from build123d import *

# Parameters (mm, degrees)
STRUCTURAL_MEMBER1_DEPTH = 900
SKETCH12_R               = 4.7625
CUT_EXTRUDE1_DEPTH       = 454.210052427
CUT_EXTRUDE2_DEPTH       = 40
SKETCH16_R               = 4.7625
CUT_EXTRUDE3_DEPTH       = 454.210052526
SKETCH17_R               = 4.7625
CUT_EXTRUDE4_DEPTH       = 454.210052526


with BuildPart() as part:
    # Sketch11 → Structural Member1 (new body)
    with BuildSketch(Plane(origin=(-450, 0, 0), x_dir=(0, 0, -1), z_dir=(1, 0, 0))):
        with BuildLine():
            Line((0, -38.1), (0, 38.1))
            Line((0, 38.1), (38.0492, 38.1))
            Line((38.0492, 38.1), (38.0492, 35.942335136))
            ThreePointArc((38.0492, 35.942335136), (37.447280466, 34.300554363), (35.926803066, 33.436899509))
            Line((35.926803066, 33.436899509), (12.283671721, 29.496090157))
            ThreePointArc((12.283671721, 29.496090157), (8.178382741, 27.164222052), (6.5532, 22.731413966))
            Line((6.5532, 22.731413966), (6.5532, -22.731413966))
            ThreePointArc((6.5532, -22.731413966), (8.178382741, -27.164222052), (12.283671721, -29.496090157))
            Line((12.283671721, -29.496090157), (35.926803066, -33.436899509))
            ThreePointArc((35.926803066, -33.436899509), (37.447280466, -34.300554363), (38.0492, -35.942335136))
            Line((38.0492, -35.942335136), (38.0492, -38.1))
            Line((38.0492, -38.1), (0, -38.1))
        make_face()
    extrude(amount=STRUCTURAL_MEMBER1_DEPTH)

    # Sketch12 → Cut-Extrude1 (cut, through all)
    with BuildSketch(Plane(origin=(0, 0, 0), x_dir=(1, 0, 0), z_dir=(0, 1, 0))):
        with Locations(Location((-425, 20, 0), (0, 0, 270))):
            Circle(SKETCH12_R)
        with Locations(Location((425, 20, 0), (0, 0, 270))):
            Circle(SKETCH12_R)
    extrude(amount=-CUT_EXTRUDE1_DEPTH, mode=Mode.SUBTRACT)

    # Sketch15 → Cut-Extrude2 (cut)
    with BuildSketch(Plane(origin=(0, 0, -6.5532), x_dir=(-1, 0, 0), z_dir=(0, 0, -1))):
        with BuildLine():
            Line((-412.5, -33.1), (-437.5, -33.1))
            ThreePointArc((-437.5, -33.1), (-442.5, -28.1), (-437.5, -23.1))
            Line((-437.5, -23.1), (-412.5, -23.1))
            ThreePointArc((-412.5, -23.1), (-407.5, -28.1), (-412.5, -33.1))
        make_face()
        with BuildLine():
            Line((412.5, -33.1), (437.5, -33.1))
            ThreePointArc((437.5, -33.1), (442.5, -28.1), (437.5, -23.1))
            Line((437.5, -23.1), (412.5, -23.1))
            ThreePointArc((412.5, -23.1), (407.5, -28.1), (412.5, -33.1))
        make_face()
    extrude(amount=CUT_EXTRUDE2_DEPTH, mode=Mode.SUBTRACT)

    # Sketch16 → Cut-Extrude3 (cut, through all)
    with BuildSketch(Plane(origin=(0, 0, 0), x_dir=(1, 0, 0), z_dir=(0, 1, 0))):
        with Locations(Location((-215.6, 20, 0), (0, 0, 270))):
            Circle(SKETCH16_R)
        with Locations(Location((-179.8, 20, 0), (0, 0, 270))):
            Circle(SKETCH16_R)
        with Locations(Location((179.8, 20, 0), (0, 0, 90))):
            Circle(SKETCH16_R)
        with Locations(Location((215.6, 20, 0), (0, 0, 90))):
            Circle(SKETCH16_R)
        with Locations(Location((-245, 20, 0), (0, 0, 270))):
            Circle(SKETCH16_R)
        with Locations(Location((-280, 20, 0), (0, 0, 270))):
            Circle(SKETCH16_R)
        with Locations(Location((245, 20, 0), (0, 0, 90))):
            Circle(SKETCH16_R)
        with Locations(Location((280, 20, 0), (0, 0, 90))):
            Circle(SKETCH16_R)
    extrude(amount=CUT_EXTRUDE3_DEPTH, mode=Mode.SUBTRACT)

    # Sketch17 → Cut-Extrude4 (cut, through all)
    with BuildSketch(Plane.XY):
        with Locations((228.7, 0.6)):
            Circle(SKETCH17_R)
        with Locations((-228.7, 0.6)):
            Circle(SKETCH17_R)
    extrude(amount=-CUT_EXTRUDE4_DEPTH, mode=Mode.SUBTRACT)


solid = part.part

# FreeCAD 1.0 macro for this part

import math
import FreeCAD as App
import Part
import Sketcher

V = App.Vector
Q = App.Units.Quantity

doc = App.newDocument("Part")
body = doc.addObject("PartDesign::Body", "Body")

# Sketch on YZ plane
sketch1 = body.newObject("Sketcher::SketchObject", "Sketch")
sketch1.AttachmentSupport = (doc.getObject("YZ_Plane"), [""])
sketch1.MapMode = "FlatFace"
sketch1.AttachmentOffset = App.Placement(V(0, 0, -450), App.Rotation())
sketch1.addGeometry(Part.LineSegment(V(38.1, 0, 0), V(-38.1, 0, 0)), False)
sketch1.addGeometry(Part.LineSegment(V(-38.1, 0, 0), V(-38.1, -38.0492, 0)), False)
sketch1.addGeometry(Part.LineSegment(V(-38.1, -38.0492, 0), V(-35.942335, -38.0492, 0)), False)
sketch1.addGeometry(Part.ArcOfCircle(Part.Circle(V(-35.942335, -35.5092, 0), V(0, 0, 1), 2.54), math.radians(-90), math.radians(-9.463)), False)
sketch1.addGeometry(Part.LineSegment(V(-33.4369, -35.926803, 0), V(-29.49609, -12.283672, 0)), False)
sketch1.addGeometry(Part.ArcOfCircle(Part.Circle(V(-22.731414, -13.4112, 0), V(0, 0, 1), 6.858), math.radians(90), math.radians(170.537)), False)
sketch1.addGeometry(Part.LineSegment(V(-22.731414, -6.5532, 0), V(22.731414, -6.5532, 0)), False)
sketch1.addGeometry(Part.ArcOfCircle(Part.Circle(V(22.731414, -13.4112, 0), V(0, 0, 1), 6.858), math.radians(9.463), math.radians(90)), False)
sketch1.addGeometry(Part.LineSegment(V(29.49609, -12.283672, 0), V(33.4369, -35.926803, 0)), False)
sketch1.addGeometry(Part.ArcOfCircle(Part.Circle(V(35.942335, -35.5092, 0), V(0, 0, 1), 2.54), math.radians(-170.537), math.radians(-90)), False)
sketch1.addGeometry(Part.LineSegment(V(35.942335, -38.0492, 0), V(38.1, -38.0492, 0)), False)
sketch1.addGeometry(Part.LineSegment(V(38.1, -38.0492, 0), V(38.1, 0, 0)), False)
sketch1.addConstraint(Sketcher.Constraint("Coincident", 0, 2, 1, 1))
sketch1.addConstraint(Sketcher.Constraint("Coincident", 1, 2, 2, 1))
sketch1.addConstraint(Sketcher.Constraint("Coincident", 2, 2, 3, 1))
sketch1.addConstraint(Sketcher.Constraint("Coincident", 3, 2, 4, 1))
sketch1.addConstraint(Sketcher.Constraint("Coincident", 4, 2, 5, 2))
sketch1.addConstraint(Sketcher.Constraint("Coincident", 5, 1, 6, 1))
sketch1.addConstraint(Sketcher.Constraint("Coincident", 6, 2, 7, 2))
sketch1.addConstraint(Sketcher.Constraint("Coincident", 7, 1, 8, 1))
sketch1.addConstraint(Sketcher.Constraint("Coincident", 8, 2, 9, 1))
sketch1.addConstraint(Sketcher.Constraint("Coincident", 9, 2, 10, 1))
sketch1.addConstraint(Sketcher.Constraint("Coincident", 10, 2, 11, 1))
sketch1.addConstraint(Sketcher.Constraint("Coincident", 11, 2, 0, 1))
sketch1.addConstraint(Sketcher.Constraint("Horizontal", 0))
sketch1.addConstraint(Sketcher.Constraint("Vertical", 1))
sketch1.addConstraint(Sketcher.Constraint("Horizontal", 2))
sketch1.addConstraint(Sketcher.Constraint("Horizontal", 6))
sketch1.addConstraint(Sketcher.Constraint("Horizontal", 10))
sketch1.addConstraint(Sketcher.Constraint("Vertical", 11))
sketch1.addConstraint(Sketcher.Constraint("PointOnObject", 0, 2, -1))
sketch1.addConstraint(Sketcher.Constraint("Radius", 3, Q("0.1 in")))
sketch1.addConstraint(Sketcher.Constraint("Radius", 9, Q("0.1 in")))
sketch1.addConstraint(Sketcher.Constraint("DistanceX", 0, 2, 0, 1, Q("3 in")))
sketch1.addConstraint(Sketcher.Constraint("Radius", 5, Q("0.27 in")))
sketch1.addConstraint(Sketcher.Constraint("Radius", 7, Q("0.27 in")))
sketch1.addConstraint(Sketcher.Constraint("DistanceX", 0, 2, -1, 1, Q("1.5 in")))
sketch1.addConstraint(Sketcher.Constraint("DistanceY", 1, 2, 9, 3, Q("0.1 in")))
sketch1.addConstraint(Sketcher.Constraint("DistanceY", 1, 2, 1, 1, Q("1.498 in")))
sketch1.addConstraint(Sketcher.Constraint("DistanceY", 3, 3, 5, 3, Q("0.87 in")))
sketch1.addConstraint(Sketcher.Constraint("DistanceX", 3, 2, -1, 1, Q("33.4369 mm")))
sketch1.addConstraint(Sketcher.Constraint("DistanceX", -1, 1, 8, 2, Q("33.4369 mm")))
sketch1.addConstraint(Sketcher.Constraint("DistanceX", 2, 1, 2, 2, Q("2.157665 mm")))
sketch1.addConstraint(Sketcher.Constraint("DistanceX", 6, 1, 6, 2, Q("45.462828 mm")))
sketch1.addConstraint(Sketcher.Constraint("DistanceX", 10, 1, 10, 2, Q("2.157665 mm")))
sketch1.addConstraint(Sketcher.Constraint("DistanceX", 4, 2, -1, 1, Q("29.49609 mm")))
sketch1.addConstraint(Sketcher.Constraint("DistanceY", 4, 2, -1, 1, Q("12.283672 mm")))
sketch1.addConstraint(Sketcher.Constraint("DistanceX", -1, 1, 7, 1, Q("29.49609 mm")))
sketch1.addConstraint(Sketcher.Constraint("DistanceY", 7, 1, -1, 1, Q("12.283672 mm")))
sketch1.addConstraint(Sketcher.Constraint("DistanceX", 3, 3, 5, 3, Q("13.210921 mm")))
sketch1.addConstraint(Sketcher.Constraint("DistanceX", 7, 3, 9, 3, Q("13.210921 mm")))
sketch1.addConstraint(Sketcher.Constraint("DistanceX", 3, 3, 5, 1, Q("13.210921 mm")))
pad1 = body.newObject("PartDesign::Pad", "Pad")
pad1.Profile = sketch1
pad1.Length = 900

# Sketch on XZ plane
sketch2 = body.newObject("Sketcher::SketchObject", "Sketch001")
sketch2.AttachmentSupport = (doc.getObject("XZ_Plane"), [""])
sketch2.MapMode = "FlatFace"
sketch2.addGeometry(Part.Circle(V(-425, -20, 0), V(0, 0, 1), 4.7625), False)
sketch2.addGeometry(Part.Circle(V(425, -20, 0), V(0, 0, 1), 4.7625), False)
sketch2.addConstraint(Sketcher.Constraint("Equal", 0, 1))
sketch2.addConstraint(Sketcher.Constraint("Symmetric", 0, 3, 1, 3, -2))
sketch2.addConstraint(Sketcher.Constraint("Diameter", 0, Q("0.375 in")))
sketch2.addConstraint(Sketcher.Constraint("DistanceX", 0, 3, -1, 1, Q("425 mm")))
sketch2.addConstraint(Sketcher.Constraint("DistanceY", 0, 3, -1, 1, Q("20 mm")))
pocket1 = body.newObject("PartDesign::Pocket", "Pocket")
pocket1.Profile = sketch2
pocket1.Type = "ThroughAll"
pocket1.Reversed = True

# Sketch on XY plane
sketch3 = body.newObject("Sketcher::SketchObject", "Sketch002")
sketch3.AttachmentSupport = (doc.getObject("XY_Plane"), [""])
sketch3.MapMode = "FlatFace"
sketch3.AttachmentOffset = App.Placement(V(0, 0, -0.258 * 25.4), App.Rotation())
sketch3.addGeometry(Part.LineSegment(V(437.5, -33.1, 0), V(412.5, -33.1, 0)), False)
sketch3.addGeometry(Part.ArcOfCircle(Part.Circle(V(412.5, -28.1, 0), V(0, 0, 1), 5), math.radians(90), math.radians(270)), False)
sketch3.addGeometry(Part.LineSegment(V(412.5, -23.1, 0), V(437.5, -23.1, 0)), False)
sketch3.addGeometry(Part.ArcOfCircle(Part.Circle(V(437.5, -28.1, 0), V(0, 0, 1), 5), math.radians(-90), math.radians(90)), False)
sketch3.addGeometry(Part.LineSegment(V(-412.5, -33.1, 0), V(-437.5, -33.1, 0)), False)
sketch3.addGeometry(Part.ArcOfCircle(Part.Circle(V(-437.5, -28.1, 0), V(0, 0, 1), 5), math.radians(90), math.radians(270)), False)
sketch3.addGeometry(Part.LineSegment(V(-437.5, -23.1, 0), V(-412.5, -23.1, 0)), False)
sketch3.addGeometry(Part.ArcOfCircle(Part.Circle(V(-412.5, -28.1, 0), V(0, 0, 1), 5), math.radians(-90), math.radians(90)), False)
sketch3.addConstraint(Sketcher.Constraint("Tangent", 0, 2, 1, 2))
sketch3.addConstraint(Sketcher.Constraint("Tangent", 1, 1, 2, 1))
sketch3.addConstraint(Sketcher.Constraint("Tangent", 2, 2, 3, 2))
sketch3.addConstraint(Sketcher.Constraint("Tangent", 3, 1, 0, 1))
sketch3.addConstraint(Sketcher.Constraint("Tangent", 4, 2, 5, 2))
sketch3.addConstraint(Sketcher.Constraint("Tangent", 5, 1, 6, 1))
sketch3.addConstraint(Sketcher.Constraint("Tangent", 6, 2, 7, 2))
sketch3.addConstraint(Sketcher.Constraint("Tangent", 7, 1, 4, 1))
sketch3.addConstraint(Sketcher.Constraint("Horizontal", 0))
sketch3.addConstraint(Sketcher.Constraint("Horizontal", 2))
sketch3.addConstraint(Sketcher.Constraint("Horizontal", 4))
sketch3.addConstraint(Sketcher.Constraint("Horizontal", 6))
sketch3.addConstraint(Sketcher.Constraint("Equal", 3, 5))
sketch3.addConstraint(Sketcher.Constraint("Symmetric", 3, 3, 5, 3, -2))
sketch3.addConstraint(Sketcher.Constraint("Equal", 2, 4))
sketch3.addConstraint(Sketcher.Constraint("Radius", 1, Q("5 mm")))
sketch3.addConstraint(Sketcher.Constraint("DistanceX", 0, 2, 0, 1, Q("25 mm")))
sketch3.addConstraint(Sketcher.Constraint("DistanceX", -1, 1, 1, 3, Q("412.5 mm")))
sketch3.addConstraint(Sketcher.Constraint("DistanceY", 1, 3, -1, 1, Q("28.1 mm")))
pocket2 = body.newObject("PartDesign::Pocket", "Pocket001")
pocket2.Profile = sketch3
pocket2.Length = 40

# Sketch on XZ plane
sketch4 = body.newObject("Sketcher::SketchObject", "Sketch003")
sketch4.AttachmentSupport = (doc.getObject("XZ_Plane"), [""])
sketch4.MapMode = "FlatFace"
sketch4.addGeometry(Part.Circle(V(-215.6, -20, 0), V(0, 0, 1), 4.7625), False)
sketch4.addGeometry(Part.Circle(V(-179.8, -20, 0), V(0, 0, 1), 4.7625), False)
sketch4.addGeometry(Part.Circle(V(179.8, -20, 0), V(0, 0, 1), 4.7625), False)
sketch4.addGeometry(Part.Circle(V(215.6, -20, 0), V(0, 0, 1), 4.7625), False)
sketch4.addGeometry(Part.Circle(V(-245, -20, 0), V(0, 0, 1), 4.7625), False)
sketch4.addGeometry(Part.Circle(V(-280, -20, 0), V(0, 0, 1), 4.7625), False)
sketch4.addGeometry(Part.Circle(V(245, -20, 0), V(0, 0, 1), 4.7625), False)
sketch4.addGeometry(Part.Circle(V(280, -20, 0), V(0, 0, 1), 4.7625), False)
sketch4.addConstraint(Sketcher.Constraint("Equal", 0, 1))
sketch4.addConstraint(Sketcher.Constraint("Equal", 1, 2))
sketch4.addConstraint(Sketcher.Constraint("Equal", 2, 3))
sketch4.addConstraint(Sketcher.Constraint("Equal", 3, 4))
sketch4.addConstraint(Sketcher.Constraint("Equal", 4, 5))
sketch4.addConstraint(Sketcher.Constraint("Equal", 5, 6))
sketch4.addConstraint(Sketcher.Constraint("Equal", 6, 7))
sketch4.addConstraint(Sketcher.Constraint("Symmetric", 1, 3, 2, 3, -2))
sketch4.addConstraint(Sketcher.Constraint("Symmetric", 0, 3, 3, 3, -2))
sketch4.addConstraint(Sketcher.Constraint("Symmetric", 4, 3, 6, 3, -2))
sketch4.addConstraint(Sketcher.Constraint("Symmetric", 5, 3, 7, 3, -2))
sketch4.addConstraint(Sketcher.Constraint("Horizontal", 0, 3, 1, 3))
sketch4.addConstraint(Sketcher.Constraint("Horizontal", 3, 3, 4, 3))
sketch4.addConstraint(Sketcher.Constraint("Horizontal", 4, 3, 5, 3))
sketch4.addConstraint(Sketcher.Constraint("Diameter", 0, Q("0.375 in")))
sketch4.addConstraint(Sketcher.Constraint("DistanceX", 0, 3, -1, 1, Q("215.6 mm")))
sketch4.addConstraint(Sketcher.Constraint("DistanceY", 0, 3, -1, 1, Q("20 mm")))
sketch4.addConstraint(Sketcher.Constraint("DistanceX", 1, 3, -1, 1, Q("179.8 mm")))
sketch4.addConstraint(Sketcher.Constraint("DistanceX", 4, 3, -1, 1, Q("245 mm")))
sketch4.addConstraint(Sketcher.Constraint("DistanceX", 5, 3, -1, 1, Q("280 mm")))
pocket3 = body.newObject("PartDesign::Pocket", "Pocket002")
pocket3.Profile = sketch4
pocket3.Type = "ThroughAll"

# Sketch on XY plane
sketch5 = body.newObject("Sketcher::SketchObject", "Sketch004")
sketch5.AttachmentSupport = (doc.getObject("XY_Plane"), [""])
sketch5.MapMode = "FlatFace"
sketch5.addGeometry(Part.Circle(V(228.7, 0.6, 0), V(0, 0, 1), 4.7625), False)
sketch5.addGeometry(Part.Circle(V(-228.7, 0.6, 0), V(0, 0, 1), 4.7625), False)
sketch5.addConstraint(Sketcher.Constraint("Equal", 0, 1))
sketch5.addConstraint(Sketcher.Constraint("Symmetric", 0, 3, 1, 3, -2))
sketch5.addConstraint(Sketcher.Constraint("Diameter", 0, Q("0.375 in")))
sketch5.addConstraint(Sketcher.Constraint("DistanceX", -1, 1, 0, 3, Q("228.7 mm")))
sketch5.addConstraint(Sketcher.Constraint("DistanceY", -1, 1, 0, 3, Q("0.6 mm")))
pocket4 = body.newObject("PartDesign::Pocket", "Pocket003")
pocket4.Profile = sketch5
pocket4.Type = "ThroughAll"

doc.recompute()
